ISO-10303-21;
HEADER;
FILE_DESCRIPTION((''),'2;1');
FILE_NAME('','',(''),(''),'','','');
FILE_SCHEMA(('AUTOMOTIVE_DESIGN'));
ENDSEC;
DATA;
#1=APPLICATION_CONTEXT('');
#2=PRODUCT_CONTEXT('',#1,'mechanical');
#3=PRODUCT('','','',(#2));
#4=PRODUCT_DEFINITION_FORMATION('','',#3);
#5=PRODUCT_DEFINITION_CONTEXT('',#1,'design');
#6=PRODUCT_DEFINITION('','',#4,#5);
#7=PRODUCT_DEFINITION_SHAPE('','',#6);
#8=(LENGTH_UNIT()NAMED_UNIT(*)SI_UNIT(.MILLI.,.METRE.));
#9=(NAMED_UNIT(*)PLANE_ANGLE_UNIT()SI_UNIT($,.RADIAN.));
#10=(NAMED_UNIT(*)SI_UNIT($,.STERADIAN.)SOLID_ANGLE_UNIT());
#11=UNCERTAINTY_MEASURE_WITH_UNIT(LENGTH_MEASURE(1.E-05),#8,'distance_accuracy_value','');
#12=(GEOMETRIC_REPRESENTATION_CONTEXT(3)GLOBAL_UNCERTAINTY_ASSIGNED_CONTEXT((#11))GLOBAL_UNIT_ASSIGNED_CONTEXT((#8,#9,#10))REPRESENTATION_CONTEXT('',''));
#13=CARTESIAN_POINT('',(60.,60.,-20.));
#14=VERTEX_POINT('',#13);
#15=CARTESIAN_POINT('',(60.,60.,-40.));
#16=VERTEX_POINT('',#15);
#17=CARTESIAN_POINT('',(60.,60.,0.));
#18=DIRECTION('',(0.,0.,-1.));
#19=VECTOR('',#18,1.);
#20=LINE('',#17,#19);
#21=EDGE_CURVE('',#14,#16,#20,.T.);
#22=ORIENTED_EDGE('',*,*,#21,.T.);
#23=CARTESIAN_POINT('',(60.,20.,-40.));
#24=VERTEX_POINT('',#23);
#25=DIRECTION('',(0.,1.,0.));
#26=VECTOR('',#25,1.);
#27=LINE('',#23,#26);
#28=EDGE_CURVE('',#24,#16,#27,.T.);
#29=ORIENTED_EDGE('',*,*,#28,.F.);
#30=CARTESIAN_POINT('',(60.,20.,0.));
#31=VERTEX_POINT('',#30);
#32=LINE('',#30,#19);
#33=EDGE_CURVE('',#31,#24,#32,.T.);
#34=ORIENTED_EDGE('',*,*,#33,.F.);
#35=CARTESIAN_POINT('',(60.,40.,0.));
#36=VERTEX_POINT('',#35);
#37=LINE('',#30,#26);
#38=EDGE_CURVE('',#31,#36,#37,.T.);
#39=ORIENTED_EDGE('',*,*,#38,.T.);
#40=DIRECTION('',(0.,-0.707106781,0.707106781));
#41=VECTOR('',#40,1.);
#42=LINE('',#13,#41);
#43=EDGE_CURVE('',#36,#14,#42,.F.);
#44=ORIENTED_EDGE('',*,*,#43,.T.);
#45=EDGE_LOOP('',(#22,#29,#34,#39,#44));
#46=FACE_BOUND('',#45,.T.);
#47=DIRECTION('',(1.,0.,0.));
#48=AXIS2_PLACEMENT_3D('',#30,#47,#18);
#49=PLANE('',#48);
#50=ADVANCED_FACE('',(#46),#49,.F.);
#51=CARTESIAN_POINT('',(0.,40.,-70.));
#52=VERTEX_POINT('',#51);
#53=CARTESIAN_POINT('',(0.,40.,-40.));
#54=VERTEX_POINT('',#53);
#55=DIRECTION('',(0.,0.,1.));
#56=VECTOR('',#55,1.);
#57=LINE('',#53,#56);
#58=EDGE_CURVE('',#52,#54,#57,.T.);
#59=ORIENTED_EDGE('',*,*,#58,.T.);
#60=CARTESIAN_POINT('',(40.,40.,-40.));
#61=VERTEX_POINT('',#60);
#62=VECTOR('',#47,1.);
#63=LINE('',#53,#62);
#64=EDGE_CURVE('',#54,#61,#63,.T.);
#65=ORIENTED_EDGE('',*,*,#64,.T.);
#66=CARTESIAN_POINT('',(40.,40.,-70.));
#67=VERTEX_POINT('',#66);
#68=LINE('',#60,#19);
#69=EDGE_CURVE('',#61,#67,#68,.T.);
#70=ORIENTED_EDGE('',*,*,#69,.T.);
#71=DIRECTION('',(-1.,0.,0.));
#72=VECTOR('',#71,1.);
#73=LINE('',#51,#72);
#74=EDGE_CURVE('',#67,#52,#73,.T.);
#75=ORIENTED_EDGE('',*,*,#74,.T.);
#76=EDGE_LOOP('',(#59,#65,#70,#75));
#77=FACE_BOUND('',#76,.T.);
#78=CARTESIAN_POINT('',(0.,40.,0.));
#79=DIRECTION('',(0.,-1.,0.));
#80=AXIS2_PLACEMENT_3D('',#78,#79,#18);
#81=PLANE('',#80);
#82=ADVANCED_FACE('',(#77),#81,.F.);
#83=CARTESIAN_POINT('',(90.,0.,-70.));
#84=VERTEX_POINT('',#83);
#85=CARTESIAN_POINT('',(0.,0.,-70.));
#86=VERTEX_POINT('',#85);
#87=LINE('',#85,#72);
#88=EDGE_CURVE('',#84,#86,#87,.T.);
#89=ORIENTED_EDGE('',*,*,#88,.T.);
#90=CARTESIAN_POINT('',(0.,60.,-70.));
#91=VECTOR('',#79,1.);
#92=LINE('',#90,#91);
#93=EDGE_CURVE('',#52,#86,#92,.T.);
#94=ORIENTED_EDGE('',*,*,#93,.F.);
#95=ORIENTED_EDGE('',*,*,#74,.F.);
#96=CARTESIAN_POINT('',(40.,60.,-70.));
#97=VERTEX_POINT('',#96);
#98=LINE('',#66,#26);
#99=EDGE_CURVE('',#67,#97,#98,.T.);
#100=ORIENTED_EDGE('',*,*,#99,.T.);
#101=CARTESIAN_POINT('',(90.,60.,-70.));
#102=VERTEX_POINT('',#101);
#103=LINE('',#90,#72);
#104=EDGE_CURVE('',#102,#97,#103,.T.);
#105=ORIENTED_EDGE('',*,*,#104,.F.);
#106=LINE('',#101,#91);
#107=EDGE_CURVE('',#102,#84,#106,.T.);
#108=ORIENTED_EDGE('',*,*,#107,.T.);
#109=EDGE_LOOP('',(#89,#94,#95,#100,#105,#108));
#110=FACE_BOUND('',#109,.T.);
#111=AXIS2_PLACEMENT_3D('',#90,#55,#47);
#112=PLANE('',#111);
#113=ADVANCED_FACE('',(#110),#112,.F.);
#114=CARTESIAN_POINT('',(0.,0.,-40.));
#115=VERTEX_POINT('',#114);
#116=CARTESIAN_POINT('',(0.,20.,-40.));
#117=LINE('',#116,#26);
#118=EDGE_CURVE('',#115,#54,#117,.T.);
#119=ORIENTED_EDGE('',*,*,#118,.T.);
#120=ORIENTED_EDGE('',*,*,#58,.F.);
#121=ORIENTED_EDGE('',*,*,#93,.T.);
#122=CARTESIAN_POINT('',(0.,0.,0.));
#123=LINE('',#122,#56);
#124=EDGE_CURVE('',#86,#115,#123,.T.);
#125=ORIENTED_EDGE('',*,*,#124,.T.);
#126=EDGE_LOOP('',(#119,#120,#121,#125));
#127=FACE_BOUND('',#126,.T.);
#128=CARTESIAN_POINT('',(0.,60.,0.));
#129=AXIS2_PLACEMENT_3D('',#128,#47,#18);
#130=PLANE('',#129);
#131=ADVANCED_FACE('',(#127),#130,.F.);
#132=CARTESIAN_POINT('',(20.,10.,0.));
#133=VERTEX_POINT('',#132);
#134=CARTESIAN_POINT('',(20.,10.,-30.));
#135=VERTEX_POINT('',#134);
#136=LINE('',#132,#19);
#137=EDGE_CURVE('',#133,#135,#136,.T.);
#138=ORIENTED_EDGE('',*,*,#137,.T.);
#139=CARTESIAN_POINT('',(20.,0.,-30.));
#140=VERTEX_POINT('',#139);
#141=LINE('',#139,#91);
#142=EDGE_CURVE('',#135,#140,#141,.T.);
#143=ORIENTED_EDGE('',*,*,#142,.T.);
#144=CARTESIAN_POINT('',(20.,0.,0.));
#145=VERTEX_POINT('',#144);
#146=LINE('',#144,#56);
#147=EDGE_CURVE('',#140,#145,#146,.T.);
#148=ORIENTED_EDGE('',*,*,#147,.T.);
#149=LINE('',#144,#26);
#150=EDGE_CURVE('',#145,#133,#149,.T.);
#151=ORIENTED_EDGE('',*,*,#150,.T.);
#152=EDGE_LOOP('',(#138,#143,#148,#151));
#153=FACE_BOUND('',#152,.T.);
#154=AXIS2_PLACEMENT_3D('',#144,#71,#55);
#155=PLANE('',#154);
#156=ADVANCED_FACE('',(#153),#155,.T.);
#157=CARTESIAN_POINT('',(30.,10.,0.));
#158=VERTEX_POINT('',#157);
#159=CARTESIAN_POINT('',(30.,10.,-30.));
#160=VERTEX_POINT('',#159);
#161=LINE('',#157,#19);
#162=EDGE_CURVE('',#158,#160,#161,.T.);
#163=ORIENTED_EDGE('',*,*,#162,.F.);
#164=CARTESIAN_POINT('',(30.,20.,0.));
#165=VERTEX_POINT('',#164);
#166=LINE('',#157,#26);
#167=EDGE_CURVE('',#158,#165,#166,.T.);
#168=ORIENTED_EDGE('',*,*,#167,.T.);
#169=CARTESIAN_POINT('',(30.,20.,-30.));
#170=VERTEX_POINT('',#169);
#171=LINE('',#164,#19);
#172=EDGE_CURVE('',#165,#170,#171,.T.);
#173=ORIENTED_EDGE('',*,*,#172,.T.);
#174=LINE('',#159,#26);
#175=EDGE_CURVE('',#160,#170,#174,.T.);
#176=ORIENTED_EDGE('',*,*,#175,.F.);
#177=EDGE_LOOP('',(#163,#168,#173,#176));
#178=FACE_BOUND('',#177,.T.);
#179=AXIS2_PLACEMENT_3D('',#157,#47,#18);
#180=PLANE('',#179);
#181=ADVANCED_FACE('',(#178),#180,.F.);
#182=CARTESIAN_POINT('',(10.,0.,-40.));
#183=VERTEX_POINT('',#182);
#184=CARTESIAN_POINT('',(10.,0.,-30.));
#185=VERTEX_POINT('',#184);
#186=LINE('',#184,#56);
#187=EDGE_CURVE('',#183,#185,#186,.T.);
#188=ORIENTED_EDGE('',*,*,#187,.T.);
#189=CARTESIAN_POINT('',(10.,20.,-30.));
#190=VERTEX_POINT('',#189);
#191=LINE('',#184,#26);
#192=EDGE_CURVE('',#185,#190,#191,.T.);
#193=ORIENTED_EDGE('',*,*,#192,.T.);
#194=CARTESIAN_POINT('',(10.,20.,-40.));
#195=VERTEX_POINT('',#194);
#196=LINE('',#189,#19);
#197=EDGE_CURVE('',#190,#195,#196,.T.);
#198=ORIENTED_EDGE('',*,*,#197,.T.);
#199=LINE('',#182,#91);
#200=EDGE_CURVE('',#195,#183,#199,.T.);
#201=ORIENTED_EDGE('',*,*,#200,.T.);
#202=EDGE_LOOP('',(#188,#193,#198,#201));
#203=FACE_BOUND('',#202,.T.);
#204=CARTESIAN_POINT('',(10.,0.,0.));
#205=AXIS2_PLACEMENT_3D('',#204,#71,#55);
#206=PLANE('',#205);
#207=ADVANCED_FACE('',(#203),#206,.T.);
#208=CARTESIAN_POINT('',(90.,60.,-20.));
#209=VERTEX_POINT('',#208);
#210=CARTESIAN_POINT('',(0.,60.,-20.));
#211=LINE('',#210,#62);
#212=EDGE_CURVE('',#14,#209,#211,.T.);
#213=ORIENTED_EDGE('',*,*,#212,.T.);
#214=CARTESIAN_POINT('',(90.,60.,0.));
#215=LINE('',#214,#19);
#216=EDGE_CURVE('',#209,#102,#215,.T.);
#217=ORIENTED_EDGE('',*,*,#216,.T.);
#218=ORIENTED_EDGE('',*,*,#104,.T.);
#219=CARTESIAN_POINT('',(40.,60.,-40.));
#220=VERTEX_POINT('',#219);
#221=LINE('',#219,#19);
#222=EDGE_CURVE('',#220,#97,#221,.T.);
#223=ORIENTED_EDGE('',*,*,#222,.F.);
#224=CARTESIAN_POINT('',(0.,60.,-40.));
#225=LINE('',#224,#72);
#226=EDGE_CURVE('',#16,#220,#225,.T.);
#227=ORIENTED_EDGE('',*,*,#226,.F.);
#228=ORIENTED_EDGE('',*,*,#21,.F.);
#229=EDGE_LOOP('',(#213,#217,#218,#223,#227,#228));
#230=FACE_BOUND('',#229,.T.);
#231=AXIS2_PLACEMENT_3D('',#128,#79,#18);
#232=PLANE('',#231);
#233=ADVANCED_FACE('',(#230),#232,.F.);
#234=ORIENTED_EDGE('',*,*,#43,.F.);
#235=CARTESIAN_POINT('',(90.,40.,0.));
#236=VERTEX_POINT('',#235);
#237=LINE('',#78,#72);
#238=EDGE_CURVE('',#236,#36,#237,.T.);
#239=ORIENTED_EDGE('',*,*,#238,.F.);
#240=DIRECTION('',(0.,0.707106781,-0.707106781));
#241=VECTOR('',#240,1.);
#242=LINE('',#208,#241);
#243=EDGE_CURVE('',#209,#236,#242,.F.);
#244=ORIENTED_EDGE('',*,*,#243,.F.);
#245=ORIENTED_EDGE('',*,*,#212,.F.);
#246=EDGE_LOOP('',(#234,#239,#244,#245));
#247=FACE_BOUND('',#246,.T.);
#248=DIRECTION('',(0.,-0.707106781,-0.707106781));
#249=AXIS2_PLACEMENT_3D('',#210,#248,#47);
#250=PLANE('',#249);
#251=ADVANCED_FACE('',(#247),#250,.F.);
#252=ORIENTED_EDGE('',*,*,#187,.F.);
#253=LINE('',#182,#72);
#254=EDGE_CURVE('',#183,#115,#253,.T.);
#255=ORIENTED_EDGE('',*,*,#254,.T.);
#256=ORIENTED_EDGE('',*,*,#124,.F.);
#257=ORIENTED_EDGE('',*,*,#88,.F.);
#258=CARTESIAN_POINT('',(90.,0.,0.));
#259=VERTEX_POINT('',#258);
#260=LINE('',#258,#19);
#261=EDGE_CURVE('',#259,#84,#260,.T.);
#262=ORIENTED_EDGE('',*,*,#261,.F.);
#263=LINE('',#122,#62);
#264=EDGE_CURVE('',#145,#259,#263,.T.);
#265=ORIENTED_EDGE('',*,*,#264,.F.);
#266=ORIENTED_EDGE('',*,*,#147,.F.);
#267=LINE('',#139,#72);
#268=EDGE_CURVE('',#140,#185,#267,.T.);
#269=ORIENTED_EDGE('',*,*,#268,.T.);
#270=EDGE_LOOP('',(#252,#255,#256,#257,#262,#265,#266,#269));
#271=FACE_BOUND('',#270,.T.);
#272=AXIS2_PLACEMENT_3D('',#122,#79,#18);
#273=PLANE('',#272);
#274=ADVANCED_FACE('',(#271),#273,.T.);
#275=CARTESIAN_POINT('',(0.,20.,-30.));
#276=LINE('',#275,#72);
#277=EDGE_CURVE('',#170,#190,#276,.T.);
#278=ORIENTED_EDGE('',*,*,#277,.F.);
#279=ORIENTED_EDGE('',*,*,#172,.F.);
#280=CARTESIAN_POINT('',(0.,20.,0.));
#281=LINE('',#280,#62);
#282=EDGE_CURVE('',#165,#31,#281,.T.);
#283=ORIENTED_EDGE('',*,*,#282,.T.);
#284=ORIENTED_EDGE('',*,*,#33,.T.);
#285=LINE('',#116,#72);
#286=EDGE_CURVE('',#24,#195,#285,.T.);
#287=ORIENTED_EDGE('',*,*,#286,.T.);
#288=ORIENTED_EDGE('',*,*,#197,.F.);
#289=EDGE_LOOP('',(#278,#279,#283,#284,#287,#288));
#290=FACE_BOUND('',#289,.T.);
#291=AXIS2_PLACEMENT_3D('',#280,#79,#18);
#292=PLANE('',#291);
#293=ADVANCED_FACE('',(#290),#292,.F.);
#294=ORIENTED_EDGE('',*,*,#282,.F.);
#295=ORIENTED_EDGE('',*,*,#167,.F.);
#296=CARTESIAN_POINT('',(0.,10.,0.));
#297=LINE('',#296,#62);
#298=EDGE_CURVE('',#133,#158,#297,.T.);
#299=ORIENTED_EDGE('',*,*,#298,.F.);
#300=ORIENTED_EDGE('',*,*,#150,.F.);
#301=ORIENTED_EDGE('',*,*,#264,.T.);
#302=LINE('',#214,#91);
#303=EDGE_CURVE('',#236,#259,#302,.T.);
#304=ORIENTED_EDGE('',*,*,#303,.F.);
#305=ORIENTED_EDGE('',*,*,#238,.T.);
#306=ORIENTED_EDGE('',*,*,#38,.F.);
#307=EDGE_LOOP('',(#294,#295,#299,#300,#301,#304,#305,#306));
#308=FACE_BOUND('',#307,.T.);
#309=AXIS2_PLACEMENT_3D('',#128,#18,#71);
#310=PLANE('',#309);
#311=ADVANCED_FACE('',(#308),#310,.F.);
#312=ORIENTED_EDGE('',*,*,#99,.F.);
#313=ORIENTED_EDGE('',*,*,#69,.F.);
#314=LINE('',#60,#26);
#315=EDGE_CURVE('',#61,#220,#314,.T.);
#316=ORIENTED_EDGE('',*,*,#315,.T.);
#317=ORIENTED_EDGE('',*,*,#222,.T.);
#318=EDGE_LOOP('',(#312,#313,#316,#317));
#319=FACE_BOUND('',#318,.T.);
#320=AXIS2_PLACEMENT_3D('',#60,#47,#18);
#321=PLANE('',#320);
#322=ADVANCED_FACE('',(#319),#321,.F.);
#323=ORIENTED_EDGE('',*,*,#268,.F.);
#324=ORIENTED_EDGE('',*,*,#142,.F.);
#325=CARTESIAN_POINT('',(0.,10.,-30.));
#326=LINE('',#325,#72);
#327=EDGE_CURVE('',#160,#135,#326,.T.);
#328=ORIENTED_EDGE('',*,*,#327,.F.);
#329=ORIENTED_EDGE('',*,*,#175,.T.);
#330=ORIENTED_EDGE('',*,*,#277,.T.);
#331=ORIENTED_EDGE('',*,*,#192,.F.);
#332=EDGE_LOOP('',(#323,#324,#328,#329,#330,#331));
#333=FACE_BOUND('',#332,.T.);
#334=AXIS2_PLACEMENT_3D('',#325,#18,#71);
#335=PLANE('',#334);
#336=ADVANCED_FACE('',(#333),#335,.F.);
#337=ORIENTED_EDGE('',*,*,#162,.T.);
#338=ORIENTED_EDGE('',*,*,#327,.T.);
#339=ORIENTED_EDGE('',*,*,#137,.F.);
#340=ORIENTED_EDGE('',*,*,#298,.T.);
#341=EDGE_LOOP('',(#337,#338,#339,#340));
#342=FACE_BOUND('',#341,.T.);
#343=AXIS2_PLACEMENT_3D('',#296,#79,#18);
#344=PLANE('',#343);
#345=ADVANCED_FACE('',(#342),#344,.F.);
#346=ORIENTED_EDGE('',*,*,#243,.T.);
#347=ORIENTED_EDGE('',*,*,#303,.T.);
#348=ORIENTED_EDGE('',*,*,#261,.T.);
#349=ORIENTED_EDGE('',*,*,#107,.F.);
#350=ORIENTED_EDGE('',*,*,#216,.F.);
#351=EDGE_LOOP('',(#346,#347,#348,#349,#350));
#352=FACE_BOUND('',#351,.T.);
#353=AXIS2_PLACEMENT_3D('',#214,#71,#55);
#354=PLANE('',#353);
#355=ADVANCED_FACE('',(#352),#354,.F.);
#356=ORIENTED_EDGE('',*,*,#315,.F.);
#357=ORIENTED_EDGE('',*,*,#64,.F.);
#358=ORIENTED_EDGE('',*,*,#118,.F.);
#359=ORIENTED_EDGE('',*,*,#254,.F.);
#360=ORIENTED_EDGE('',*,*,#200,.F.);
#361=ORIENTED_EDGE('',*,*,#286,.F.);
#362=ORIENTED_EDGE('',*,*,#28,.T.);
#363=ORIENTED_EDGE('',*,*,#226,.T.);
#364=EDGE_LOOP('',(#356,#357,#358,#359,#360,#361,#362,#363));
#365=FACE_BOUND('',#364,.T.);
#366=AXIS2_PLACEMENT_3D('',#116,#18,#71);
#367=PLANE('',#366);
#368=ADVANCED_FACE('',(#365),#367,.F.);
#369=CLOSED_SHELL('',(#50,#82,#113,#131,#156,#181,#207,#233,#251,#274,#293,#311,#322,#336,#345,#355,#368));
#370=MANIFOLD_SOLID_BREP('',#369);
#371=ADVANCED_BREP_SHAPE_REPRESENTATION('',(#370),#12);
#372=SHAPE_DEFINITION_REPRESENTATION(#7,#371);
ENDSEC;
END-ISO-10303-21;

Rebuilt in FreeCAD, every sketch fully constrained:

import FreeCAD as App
import Part
import Sketcher

V = App.Vector
Q = App.Units.Quantity


def edges_at(feature, points):
    """Names of the edges that pass closest to the given points."""
    edges = feature.Shape.Edges
    near = lambda p: min(range(len(edges)), key=lambda i: edges[i].distToShape(Part.Vertex(*p))[0])
    return sorted({f"Edge{near(p) + 1}" for p in points})


def add_polygon(sketch, points):
    """Adds a closed chain of lines whose ends are joined by coincident constraints."""
    first, n = sketch.GeometryCount, len(points)
    for a, b in zip(points, points[1:] + points[:1]):
        sketch.addGeometry(Part.LineSegment(App.Vector(*a, 0), App.Vector(*b, 0)), False)
    for i in range(n):
        sketch.addConstraint(Sketcher.Constraint("Coincident", first + i, 2, first + (i + 1) % n, 1))

doc = App.newDocument("Part")
params = doc.addObject("Spreadsheet::Sheet", "Params")
for row, (alias, value) in enumerate([
    ("sketch1_width", "90 mm"),
    ("sketch1_height", "70 mm"),
    ("pad1_length", "60 mm"),
    ("sketch2_width", "60 mm"),
    ("sketch2_height", "40 mm"),
    ("pocket1_length", "40 mm"),
    ("sketch3_width", "30 mm"),
    ("pocket2_length", "10 mm"),
    ("sketch4_width", "10 mm"),
    ("sketch4_height", "30 mm"),
    ("pocket3_length", "20 mm"),
    ("sketch5_width", "20 mm"),
    ("sketch5_height", "10 mm"),
    ("pocket4_length", "10 mm"),
    ("sketch6_width", "40 mm"),
    ("sketch6_height", "30 mm"),
    ("pocket5_length", "20 mm"),
    ("chamfer_size", "20 mm"),
], start=1):
    params.set(f"A{row}", alias)
    params.set(f"B{row}", "=" + value)
    params.setAlias(f"B{row}", alias)

body = doc.addObject("PartDesign::Body", "Body")

# Sketch on XZ plane
sketch1 = doc.addObject("Sketcher::SketchObject", "Sketch")
body.addObject(sketch1)
sketch1.AttachmentSupport = (doc.XZ_Plane, [""])
sketch1.MapMode = "FlatFace"
add_polygon(sketch1, [(0, -70), (0, 0), (90, 0), (90, -70)])  # lines 0-3
sketch1.addConstraint(Sketcher.Constraint("Vertical", 0))
sketch1.addConstraint(Sketcher.Constraint("Horizontal", 1))
sketch1.addConstraint(Sketcher.Constraint("Vertical", 2))
sketch1.addConstraint(Sketcher.Constraint("Horizontal", 3))
sketch1.addConstraint(Sketcher.Constraint("Coincident", 0, 2, -1, 1))
sketch1.addConstraint(Sketcher.Constraint("DistanceX", 1, 1, 1, 2, Q("90 mm")))
sketch1.addConstraint(Sketcher.Constraint("DistanceY", 0, 1, 0, 2, Q("70 mm")))
sketch1.setExpression("Constraints[9]", "Params.sketch1_width")
sketch1.setExpression("Constraints[10]", "Params.sketch1_height")
pad1 = doc.addObject("PartDesign::Pad", "Pad")
body.addObject(pad1)
pad1.Profile = sketch1
pad1.setExpression("Length", "Params.pad1_length")
pad1.Reversed = True

# Sketch on XZ plane
sketch2 = doc.addObject("Sketcher::SketchObject", "Sketch001")
body.addObject(sketch2)
sketch2.AttachmentSupport = (doc.XZ_Plane, [""])
sketch2.MapMode = "FlatFace"
sketch2.AttachmentOffset = App.Placement(V(0, 0, -60), App.Rotation())
add_polygon(sketch2, [(0, -40), (0, 0), (60, 0), (60, -40)])  # lines 0-3
sketch2.addConstraint(Sketcher.Constraint("Vertical", 0))
sketch2.addConstraint(Sketcher.Constraint("Horizontal", 1))
sketch2.addConstraint(Sketcher.Constraint("Vertical", 2))
sketch2.addConstraint(Sketcher.Constraint("Horizontal", 3))
sketch2.addConstraint(Sketcher.Constraint("Coincident", 0, 2, -1, 1))
sketch2.addConstraint(Sketcher.Constraint("DistanceX", 1, 1, 1, 2, Q("60 mm")))
sketch2.addConstraint(Sketcher.Constraint("DistanceY", 0, 1, 0, 2, Q("40 mm")))
sketch2.setExpression("Constraints[9]", "Params.sketch2_width")
sketch2.setExpression("Constraints[10]", "Params.sketch2_height")
pocket1 = doc.addObject("PartDesign::Pocket", "Pocket")
body.addObject(pocket1)
pocket1.Profile = sketch2
pocket1.setExpression("Length", "Params.pocket1_length")
pocket1.Reversed = True

# Sketch on XZ plane
sketch3 = doc.addObject("Sketcher::SketchObject", "Sketch002")
body.addObject(sketch3)
sketch3.AttachmentSupport = (doc.XZ_Plane, [""])
sketch3.MapMode = "FlatFace"
sketch3.AttachmentOffset = App.Placement(V(0, 0, -20), App.Rotation())
add_polygon(sketch3, [(0, -30), (0, 0), (30, 0), (30, -30)])  # lines 0-3
sketch3.addConstraint(Sketcher.Constraint("Vertical", 0))
sketch3.addConstraint(Sketcher.Constraint("Horizontal", 1))
sketch3.addConstraint(Sketcher.Constraint("Vertical", 2))
sketch3.addConstraint(Sketcher.Constraint("Horizontal", 3))
sketch3.addConstraint(Sketcher.Constraint("Coincident", 0, 2, -1, 1))
sketch3.addConstraint(Sketcher.Constraint("Equal", 3, 0))
sketch3.addConstraint(Sketcher.Constraint("DistanceX", 1, 1, 1, 2, Q("30 mm")))
sketch3.setExpression("Constraints[10]", "Params.sketch3_width")
pocket2 = doc.addObject("PartDesign::Pocket", "Pocket001")
body.addObject(pocket2)
pocket2.Profile = sketch3
pocket2.setExpression("Length", "Params.pocket2_length")
pocket2.Reversed = True

# Sketch on YZ plane
sketch4 = doc.addObject("Sketcher::SketchObject", "Sketch003")
body.addObject(sketch4)
sketch4.AttachmentSupport = (doc.YZ_Plane, [""])
sketch4.MapMode = "FlatFace"
add_polygon(sketch4, [(10, -30), (0, -30), (0, 0), (10, 0)])  # lines 0-3
sketch4.addConstraint(Sketcher.Constraint("Horizontal", 0))
sketch4.addConstraint(Sketcher.Constraint("Vertical", 1))
sketch4.addConstraint(Sketcher.Constraint("Horizontal", 2))
sketch4.addConstraint(Sketcher.Constraint("Vertical", 3))
sketch4.addConstraint(Sketcher.Constraint("Coincident", 1, 2, -1, 1))
sketch4.addConstraint(Sketcher.Constraint("DistanceX", 0, 2, 0, 1, Q("10 mm")))
sketch4.addConstraint(Sketcher.Constraint("DistanceY", 1, 1, 1, 2, Q("30 mm")))
sketch4.setExpression("Constraints[9]", "Params.sketch4_width")
sketch4.setExpression("Constraints[10]", "Params.sketch4_height")
pocket3 = doc.addObject("PartDesign::Pocket", "Pocket002")
body.addObject(pocket3)
pocket3.Profile = sketch4
pocket3.setExpression("Length", "Params.pocket3_length")
pocket3.Reversed = True

# Sketch on YZ plane
sketch5 = doc.addObject("Sketcher::SketchObject", "Sketch004")
body.addObject(sketch5)
sketch5.AttachmentSupport = (doc.YZ_Plane, [""])
sketch5.MapMode = "FlatFace"
add_polygon(sketch5, [(20, -40), (0, -40), (0, -30), (20, -30)])  # lines 0-3
sketch5.addConstraint(Sketcher.Constraint("Horizontal", 0))
sketch5.addConstraint(Sketcher.Constraint("Vertical", 1))
sketch5.addConstraint(Sketcher.Constraint("Horizontal", 2))
sketch5.addConstraint(Sketcher.Constraint("Vertical", 3))
sketch5.addConstraint(Sketcher.Constraint("PointOnObject", 0, 2, -2))
sketch5.addConstraint(Sketcher.Constraint("DistanceX", 0, 2, 0, 1, Q("20 mm")))
sketch5.addConstraint(Sketcher.Constraint("DistanceY", 1, 1, 1, 2, Q("10 mm")))
sketch5.addConstraint(Sketcher.Constraint("DistanceY", 0, 2, -1, 1, Q("40 mm")))
sketch5.setExpression("Constraints[9]", "Params.sketch5_width")
sketch5.setExpression("Constraints[10]", "Params.sketch5_height")
pocket4 = doc.addObject("PartDesign::Pocket", "Pocket003")
body.addObject(pocket4)
pocket4.Profile = sketch5
pocket4.setExpression("Length", "Params.pocket4_length")
pocket4.Reversed = True

# Sketch on XZ plane
sketch6 = doc.addObject("Sketcher::SketchObject", "Sketch005")
body.addObject(sketch6)
sketch6.AttachmentSupport = (doc.XZ_Plane, [""])
sketch6.MapMode = "FlatFace"
sketch6.AttachmentOffset = App.Placement(V(0, 0, -60), App.Rotation())
add_polygon(sketch6, [(0, -70), (0, -40), (40, -40), (40, -70)])  # lines 0-3
sketch6.addConstraint(Sketcher.Constraint("Vertical", 0))
sketch6.addConstraint(Sketcher.Constraint("Horizontal", 1))
sketch6.addConstraint(Sketcher.Constraint("Vertical", 2))
sketch6.addConstraint(Sketcher.Constraint("Horizontal", 3))
sketch6.addConstraint(Sketcher.Constraint("PointOnObject", 0, 2, -2))
sketch6.addConstraint(Sketcher.Constraint("DistanceX", 1, 1, 1, 2, Q("40 mm")))
sketch6.addConstraint(Sketcher.Constraint("DistanceY", 0, 1, 0, 2, Q("30 mm")))
sketch6.addConstraint(Sketcher.Constraint("DistanceY", 0, 2, -1, 1, Q("40 mm")))
sketch6.setExpression("Constraints[9]", "Params.sketch6_width")
sketch6.setExpression("Constraints[10]", "Params.sketch6_height")
pocket5 = doc.addObject("PartDesign::Pocket", "Pocket004")
body.addObject(pocket5)
pocket5.Profile = sketch6
pocket5.setExpression("Length", "Params.pocket5_length")
pocket5.Reversed = True
doc.recompute()

chamfer = doc.addObject("PartDesign::Chamfer", "Chamfer")
body.addObject(chamfer)
chamfer.Base = (pocket5, edges_at(pocket5, [(75, 60, 0)]))
chamfer.setExpression("Size", "Params.chamfer_size")

doc.recompute()
